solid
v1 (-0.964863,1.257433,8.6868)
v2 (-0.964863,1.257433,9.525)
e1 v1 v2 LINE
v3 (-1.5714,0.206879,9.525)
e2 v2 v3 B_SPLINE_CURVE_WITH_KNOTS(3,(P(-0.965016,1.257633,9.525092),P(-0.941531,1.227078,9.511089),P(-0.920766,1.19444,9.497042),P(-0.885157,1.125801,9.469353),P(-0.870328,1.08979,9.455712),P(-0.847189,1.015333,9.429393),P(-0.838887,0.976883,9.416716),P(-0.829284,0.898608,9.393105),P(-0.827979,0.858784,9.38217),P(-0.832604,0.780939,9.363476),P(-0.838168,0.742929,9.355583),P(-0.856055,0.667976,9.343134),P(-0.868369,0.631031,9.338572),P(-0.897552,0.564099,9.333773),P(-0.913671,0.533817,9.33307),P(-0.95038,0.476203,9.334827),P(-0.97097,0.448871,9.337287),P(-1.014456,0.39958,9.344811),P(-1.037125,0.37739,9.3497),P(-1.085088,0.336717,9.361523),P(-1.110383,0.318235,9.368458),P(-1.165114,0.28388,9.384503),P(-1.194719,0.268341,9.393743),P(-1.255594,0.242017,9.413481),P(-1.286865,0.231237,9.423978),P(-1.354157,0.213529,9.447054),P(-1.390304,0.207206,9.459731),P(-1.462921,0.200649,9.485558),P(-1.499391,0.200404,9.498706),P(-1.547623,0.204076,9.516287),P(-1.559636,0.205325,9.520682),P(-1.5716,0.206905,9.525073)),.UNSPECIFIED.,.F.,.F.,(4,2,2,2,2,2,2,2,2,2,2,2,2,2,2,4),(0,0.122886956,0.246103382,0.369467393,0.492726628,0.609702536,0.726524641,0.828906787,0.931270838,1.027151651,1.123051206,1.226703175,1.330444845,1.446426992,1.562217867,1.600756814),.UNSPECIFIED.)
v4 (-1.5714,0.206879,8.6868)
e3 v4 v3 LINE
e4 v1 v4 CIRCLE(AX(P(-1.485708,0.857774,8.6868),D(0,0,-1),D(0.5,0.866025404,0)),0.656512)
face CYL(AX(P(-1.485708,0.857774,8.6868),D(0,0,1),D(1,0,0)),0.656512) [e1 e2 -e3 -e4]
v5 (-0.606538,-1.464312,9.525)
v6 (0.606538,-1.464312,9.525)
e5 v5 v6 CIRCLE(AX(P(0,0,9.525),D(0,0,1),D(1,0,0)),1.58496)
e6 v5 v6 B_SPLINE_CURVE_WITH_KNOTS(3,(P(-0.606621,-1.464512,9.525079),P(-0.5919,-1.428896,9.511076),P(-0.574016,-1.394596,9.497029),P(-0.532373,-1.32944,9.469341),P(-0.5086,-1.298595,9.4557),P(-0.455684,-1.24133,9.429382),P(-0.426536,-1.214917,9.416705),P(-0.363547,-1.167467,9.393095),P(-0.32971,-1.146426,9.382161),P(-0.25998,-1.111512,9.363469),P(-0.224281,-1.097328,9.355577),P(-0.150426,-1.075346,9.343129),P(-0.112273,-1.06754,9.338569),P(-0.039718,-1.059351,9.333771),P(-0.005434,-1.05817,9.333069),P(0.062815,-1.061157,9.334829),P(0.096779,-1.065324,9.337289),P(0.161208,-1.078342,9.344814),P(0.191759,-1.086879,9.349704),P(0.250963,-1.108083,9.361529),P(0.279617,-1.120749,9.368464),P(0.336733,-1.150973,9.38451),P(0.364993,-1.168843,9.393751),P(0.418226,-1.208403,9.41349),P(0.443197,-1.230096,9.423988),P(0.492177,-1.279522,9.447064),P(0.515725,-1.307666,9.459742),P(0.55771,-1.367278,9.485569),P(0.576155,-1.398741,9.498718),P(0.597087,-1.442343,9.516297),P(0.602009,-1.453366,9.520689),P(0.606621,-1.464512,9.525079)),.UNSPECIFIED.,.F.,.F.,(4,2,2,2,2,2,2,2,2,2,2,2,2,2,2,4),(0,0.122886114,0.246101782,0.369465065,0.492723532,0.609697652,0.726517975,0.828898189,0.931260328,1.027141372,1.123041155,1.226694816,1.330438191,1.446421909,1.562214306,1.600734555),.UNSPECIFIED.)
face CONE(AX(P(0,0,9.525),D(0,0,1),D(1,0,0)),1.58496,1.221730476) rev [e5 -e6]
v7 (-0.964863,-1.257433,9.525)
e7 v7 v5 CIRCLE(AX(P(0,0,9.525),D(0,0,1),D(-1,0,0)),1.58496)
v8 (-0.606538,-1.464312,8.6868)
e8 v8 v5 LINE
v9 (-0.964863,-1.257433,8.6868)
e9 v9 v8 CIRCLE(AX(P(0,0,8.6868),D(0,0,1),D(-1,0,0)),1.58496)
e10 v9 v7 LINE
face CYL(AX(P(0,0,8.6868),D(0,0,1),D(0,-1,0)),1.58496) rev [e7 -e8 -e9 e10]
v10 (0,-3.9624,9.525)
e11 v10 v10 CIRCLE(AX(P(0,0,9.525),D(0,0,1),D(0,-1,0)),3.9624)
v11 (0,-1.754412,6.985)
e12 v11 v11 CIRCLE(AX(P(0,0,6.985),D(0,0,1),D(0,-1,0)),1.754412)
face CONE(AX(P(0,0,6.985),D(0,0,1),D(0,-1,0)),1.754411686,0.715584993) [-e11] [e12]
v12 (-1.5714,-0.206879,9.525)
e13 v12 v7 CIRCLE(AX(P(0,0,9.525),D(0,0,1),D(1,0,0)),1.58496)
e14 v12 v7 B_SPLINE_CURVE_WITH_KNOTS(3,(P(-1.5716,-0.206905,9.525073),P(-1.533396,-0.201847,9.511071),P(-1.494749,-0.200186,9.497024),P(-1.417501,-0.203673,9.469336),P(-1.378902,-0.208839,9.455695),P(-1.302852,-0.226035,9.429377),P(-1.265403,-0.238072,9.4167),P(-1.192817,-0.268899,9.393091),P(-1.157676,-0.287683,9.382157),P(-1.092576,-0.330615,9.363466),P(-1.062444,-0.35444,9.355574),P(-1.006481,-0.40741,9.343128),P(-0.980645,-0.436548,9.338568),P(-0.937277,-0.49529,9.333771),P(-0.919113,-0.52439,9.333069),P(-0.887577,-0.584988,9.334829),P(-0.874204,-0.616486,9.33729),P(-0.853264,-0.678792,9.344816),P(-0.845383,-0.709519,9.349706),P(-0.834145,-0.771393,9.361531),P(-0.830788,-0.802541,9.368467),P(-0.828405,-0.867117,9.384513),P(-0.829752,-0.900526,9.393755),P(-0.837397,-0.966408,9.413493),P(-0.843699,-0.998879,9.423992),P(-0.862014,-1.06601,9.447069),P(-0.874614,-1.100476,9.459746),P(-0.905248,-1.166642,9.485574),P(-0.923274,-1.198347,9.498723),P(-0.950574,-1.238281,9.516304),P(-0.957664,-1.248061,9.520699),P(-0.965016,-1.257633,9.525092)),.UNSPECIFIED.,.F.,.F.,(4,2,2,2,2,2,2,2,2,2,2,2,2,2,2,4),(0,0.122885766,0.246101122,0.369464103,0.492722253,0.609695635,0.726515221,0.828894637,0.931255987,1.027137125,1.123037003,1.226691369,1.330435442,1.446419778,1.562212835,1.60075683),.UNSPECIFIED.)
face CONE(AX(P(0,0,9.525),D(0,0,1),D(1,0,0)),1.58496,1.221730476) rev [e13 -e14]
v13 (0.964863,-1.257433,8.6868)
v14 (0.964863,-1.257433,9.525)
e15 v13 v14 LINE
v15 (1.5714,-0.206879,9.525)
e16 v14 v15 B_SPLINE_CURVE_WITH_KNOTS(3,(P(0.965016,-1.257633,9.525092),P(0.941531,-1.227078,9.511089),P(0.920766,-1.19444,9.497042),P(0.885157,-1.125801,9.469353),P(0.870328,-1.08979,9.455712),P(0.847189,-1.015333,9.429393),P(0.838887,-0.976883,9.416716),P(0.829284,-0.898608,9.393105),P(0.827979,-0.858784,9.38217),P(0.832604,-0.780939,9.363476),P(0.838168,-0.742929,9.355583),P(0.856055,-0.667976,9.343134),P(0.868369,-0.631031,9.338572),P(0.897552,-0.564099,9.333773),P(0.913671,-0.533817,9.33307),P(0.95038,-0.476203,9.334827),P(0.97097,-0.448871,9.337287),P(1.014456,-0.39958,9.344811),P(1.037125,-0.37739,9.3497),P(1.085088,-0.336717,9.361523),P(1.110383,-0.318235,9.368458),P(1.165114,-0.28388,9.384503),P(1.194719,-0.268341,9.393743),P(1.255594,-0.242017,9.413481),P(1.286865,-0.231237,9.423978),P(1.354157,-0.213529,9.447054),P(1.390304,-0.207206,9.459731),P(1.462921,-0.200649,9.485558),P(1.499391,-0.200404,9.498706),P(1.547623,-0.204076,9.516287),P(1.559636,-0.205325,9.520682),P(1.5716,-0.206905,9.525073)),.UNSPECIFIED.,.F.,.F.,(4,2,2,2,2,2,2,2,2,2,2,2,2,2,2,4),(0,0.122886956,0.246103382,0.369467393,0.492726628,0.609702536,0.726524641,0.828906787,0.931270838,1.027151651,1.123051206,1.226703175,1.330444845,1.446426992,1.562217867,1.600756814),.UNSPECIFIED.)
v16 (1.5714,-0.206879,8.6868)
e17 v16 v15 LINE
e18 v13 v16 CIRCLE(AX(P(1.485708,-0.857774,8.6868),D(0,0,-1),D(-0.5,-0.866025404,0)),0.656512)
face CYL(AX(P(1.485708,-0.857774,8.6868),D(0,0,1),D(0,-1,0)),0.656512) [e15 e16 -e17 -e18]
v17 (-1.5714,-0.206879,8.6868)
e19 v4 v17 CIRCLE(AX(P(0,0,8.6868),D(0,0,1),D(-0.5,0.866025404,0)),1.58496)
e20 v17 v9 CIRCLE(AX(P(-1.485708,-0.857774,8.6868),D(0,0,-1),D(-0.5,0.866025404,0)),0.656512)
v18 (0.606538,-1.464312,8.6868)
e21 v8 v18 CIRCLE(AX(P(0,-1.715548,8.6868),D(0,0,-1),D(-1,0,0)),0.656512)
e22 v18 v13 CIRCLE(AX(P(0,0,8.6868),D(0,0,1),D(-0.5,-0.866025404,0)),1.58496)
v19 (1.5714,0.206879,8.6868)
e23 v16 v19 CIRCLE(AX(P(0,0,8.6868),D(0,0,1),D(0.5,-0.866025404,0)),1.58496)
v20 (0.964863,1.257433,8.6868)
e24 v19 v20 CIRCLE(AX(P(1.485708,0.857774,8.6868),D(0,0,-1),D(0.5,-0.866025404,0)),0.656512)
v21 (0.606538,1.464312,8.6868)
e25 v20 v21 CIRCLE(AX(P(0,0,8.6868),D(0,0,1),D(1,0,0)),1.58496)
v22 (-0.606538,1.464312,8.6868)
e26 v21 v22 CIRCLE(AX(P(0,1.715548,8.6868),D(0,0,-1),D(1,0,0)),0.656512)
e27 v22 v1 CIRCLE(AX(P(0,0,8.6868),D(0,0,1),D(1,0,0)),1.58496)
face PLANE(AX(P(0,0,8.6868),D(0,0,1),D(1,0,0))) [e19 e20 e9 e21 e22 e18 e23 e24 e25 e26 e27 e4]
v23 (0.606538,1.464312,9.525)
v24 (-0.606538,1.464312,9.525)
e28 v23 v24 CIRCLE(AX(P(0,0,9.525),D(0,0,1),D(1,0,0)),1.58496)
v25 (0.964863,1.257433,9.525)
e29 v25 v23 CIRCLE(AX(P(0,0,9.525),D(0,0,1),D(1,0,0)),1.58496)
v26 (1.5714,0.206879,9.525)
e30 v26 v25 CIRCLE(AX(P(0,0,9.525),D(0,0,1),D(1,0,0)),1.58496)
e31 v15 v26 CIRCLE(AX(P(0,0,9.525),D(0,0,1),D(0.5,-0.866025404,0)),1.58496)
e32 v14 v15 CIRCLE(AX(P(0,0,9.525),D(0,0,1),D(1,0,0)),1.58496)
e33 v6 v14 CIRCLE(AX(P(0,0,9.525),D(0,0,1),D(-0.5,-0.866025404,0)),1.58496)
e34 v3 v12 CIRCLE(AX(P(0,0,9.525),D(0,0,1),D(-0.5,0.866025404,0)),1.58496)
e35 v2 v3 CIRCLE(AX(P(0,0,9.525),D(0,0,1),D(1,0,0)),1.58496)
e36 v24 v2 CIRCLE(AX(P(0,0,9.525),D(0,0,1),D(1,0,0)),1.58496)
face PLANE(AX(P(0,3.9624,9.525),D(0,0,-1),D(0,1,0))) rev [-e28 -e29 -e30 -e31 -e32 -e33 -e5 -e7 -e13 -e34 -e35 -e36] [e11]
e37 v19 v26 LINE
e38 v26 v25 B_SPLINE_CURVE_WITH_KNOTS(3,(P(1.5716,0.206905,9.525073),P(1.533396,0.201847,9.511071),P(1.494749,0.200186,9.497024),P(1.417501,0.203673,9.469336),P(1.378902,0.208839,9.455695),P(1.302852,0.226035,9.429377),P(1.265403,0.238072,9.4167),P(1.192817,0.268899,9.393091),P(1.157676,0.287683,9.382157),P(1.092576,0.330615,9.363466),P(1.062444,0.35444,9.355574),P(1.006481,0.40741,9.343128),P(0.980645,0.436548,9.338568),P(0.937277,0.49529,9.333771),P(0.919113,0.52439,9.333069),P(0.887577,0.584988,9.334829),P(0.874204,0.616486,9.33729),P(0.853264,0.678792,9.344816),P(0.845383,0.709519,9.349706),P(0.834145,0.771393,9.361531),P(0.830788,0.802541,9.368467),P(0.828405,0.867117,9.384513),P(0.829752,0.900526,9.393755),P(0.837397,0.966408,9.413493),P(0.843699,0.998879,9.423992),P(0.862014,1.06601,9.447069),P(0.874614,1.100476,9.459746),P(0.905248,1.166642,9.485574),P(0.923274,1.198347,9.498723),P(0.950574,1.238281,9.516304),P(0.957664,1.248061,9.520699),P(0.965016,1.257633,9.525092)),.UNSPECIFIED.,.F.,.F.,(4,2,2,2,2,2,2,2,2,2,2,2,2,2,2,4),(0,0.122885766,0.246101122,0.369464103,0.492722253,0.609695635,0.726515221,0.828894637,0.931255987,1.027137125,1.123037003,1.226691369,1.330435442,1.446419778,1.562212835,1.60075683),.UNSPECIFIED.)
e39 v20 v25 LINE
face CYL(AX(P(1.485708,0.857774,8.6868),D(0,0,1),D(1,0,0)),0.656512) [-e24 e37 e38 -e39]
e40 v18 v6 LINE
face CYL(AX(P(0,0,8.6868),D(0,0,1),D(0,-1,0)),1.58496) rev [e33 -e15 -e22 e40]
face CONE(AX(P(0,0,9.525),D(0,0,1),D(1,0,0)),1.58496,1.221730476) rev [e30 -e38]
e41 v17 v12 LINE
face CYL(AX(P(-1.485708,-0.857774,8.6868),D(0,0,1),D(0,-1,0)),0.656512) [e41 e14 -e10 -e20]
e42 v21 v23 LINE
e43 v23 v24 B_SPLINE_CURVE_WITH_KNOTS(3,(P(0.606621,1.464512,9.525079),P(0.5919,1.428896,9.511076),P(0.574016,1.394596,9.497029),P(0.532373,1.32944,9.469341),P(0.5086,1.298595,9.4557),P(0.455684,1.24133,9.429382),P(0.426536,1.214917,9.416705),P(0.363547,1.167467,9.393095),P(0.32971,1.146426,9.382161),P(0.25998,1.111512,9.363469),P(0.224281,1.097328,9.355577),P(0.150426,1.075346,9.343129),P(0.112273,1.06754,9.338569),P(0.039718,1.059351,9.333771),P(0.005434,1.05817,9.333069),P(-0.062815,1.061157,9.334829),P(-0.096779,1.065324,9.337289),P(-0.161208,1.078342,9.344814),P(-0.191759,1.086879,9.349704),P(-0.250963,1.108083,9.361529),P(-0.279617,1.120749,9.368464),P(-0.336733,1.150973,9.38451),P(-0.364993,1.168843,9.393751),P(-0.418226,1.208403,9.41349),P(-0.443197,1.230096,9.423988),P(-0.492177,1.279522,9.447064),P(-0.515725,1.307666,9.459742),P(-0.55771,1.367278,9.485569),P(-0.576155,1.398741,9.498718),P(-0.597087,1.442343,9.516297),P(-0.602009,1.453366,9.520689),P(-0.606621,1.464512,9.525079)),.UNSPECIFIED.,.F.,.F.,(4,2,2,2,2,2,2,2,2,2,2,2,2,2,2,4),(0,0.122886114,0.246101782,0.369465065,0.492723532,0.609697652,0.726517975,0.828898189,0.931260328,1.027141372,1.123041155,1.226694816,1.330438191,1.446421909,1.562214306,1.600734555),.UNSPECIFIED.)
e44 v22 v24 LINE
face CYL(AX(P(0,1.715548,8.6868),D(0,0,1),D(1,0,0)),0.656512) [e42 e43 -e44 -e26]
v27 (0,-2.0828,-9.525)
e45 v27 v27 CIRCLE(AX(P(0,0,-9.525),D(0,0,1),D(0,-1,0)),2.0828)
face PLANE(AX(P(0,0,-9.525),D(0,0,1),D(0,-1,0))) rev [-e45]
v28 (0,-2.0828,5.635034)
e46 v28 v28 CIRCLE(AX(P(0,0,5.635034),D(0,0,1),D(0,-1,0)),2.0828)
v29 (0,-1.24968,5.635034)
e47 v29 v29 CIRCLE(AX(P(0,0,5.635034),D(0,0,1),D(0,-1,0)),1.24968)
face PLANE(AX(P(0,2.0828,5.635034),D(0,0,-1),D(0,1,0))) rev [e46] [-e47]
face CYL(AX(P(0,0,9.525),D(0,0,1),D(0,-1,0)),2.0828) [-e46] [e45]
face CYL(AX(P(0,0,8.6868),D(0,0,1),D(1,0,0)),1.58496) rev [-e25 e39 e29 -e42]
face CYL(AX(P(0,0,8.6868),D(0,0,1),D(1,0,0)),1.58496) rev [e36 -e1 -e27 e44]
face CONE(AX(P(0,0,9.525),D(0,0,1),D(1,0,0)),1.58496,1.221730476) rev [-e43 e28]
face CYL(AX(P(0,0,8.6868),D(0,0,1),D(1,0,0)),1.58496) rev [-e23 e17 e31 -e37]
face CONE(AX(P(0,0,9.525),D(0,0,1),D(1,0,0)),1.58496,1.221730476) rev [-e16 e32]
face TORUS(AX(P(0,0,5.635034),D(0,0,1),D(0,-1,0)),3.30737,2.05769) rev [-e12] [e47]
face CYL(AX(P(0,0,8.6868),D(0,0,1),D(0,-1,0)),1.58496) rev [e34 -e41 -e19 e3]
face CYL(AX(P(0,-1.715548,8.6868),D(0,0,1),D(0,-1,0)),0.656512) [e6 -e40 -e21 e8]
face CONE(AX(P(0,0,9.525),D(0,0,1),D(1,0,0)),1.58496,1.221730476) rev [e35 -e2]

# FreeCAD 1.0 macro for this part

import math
import FreeCAD as App
import Part
import Sketcher

V = App.Vector
Q = App.Units.Quantity

doc = App.newDocument("Part")
body = doc.addObject("PartDesign::Body", "Body")

sketch1 = body.newObject("Sketcher::SketchObject", "Sketch")
sketch1.AttachmentSupport = (doc.getObject("YZ_Plane"), [""])
sketch1.MapMode = "FlatFace"
sketch1.addGeometry(Part.LineSegment(V(2.1, 5.6, 0), V(1.2, 5.6, 0)), False)
sketch1.addGeometry(Part.ArcOfCircle(Part.Circle(V(3.3, 5.6, 0), V(0, 0, 1), 2.1), math.radians(139), math.radians(180)), False)
sketch1.addGeometry(Part.LineSegment(V(1.8, 7, 0), V(4, 9.5, 0)), False)
sketch1.addGeometry(Part.LineSegment(V(4, 9.5, 0), V(0, 9.5, 0)), False)
sketch1.addGeometry(Part.LineSegment(V(0, 9.5, 0), V(0, -9.5, 0)), False)
sketch1.addGeometry(Part.LineSegment(V(0, -9.5, 0), V(2.1, -9.5, 0)), False)
sketch1.addGeometry(Part.LineSegment(V(2.1, -9.5, 0), V(2.1, 5.6, 0)), False)
sketch1.addConstraint(Sketcher.Constraint("Coincident", 0, 2, 1, 2))
sketch1.addConstraint(Sketcher.Constraint("Tangent", 1, 1, 2, 1))
sketch1.addConstraint(Sketcher.Constraint("Coincident", 2, 2, 3, 1))
sketch1.addConstraint(Sketcher.Constraint("Coincident", 3, 2, 4, 1))
sketch1.addConstraint(Sketcher.Constraint("Coincident", 4, 2, 5, 1))
sketch1.addConstraint(Sketcher.Constraint("Coincident", 5, 2, 6, 1))
sketch1.addConstraint(Sketcher.Constraint("Coincident", 6, 2, 0, 1))
sketch1.addConstraint(Sketcher.Constraint("Horizontal", 0))
sketch1.addConstraint(Sketcher.Constraint("Horizontal", 3))
sketch1.addConstraint(Sketcher.Constraint("Vertical", 4))
sketch1.addConstraint(Sketcher.Constraint("Horizontal", 5))
sketch1.addConstraint(Sketcher.Constraint("Vertical", 6))
sketch1.addConstraint(Sketcher.Constraint("Symmetric", 3, 2, 4, 2, -1, 1))
sketch1.addConstraint(Sketcher.Constraint("Horizontal", 1, 3, 0, 2))
sketch1.addConstraint(Sketcher.Constraint("Angle", 2, Q("49 deg")))
sketch1.addConstraint(Sketcher.Constraint("DistanceY", 4, 2, 4, 1, Q("0.75 in")))
sketch1.addConstraint(Sketcher.Constraint("DistanceY", 1, 1, 2, 2, Q("0.1 in")))
sketch1.addConstraint(Sketcher.Constraint("DistanceX", 3, 2, 3, 1, Q("0.156 in")))
sketch1.addConstraint(Sketcher.Constraint("DistanceX", 5, 1, 5, 2, Q("0.082 in")))
sketch1.addConstraint(Sketcher.Constraint("DistanceX", 0, 2, 0, 1, Q("0.0328 in")))
revolution = body.newObject("PartDesign::Revolution", "Revolution")
revolution.Profile = sketch1
revolution.ReferenceAxis = (sketch1, ["V_Axis"])
revolution.Angle = 360

sketch2 = body.newObject("Sketcher::SketchObject", "Sketch001")
sketch2.AttachmentSupport = (doc.getObject("XY_Plane"), [""])
sketch2.MapMode = "FlatFace"
sketch2.AttachmentOffset = App.Placement(V(0, 0, 0.375 * 25.4), App.Rotation())
sketch2.addGeometry(Part.LineSegment(V(-0.79, 1.37, 0), V(0, 0, 0)), False)
sketch2.addGeometry(Part.LineSegment(V(0, 0, 0), V(0.79, 1.37, 0)), False)
sketch2.addGeometry(Part.ArcOfCircle(Part.Circle(V(0, 0, 0), V(0, 0, 1), 1.58), math.radians(60), math.radians(67.5)), False)
sketch2.addGeometry(Part.ArcOfCircle(Part.Circle(V(0, 1.72, 0), V(0, 0, 1), 0.66), math.radians(-157), math.radians(-23)), False)
sketch2.addGeometry(Part.ArcOfCircle(Part.Circle(V(0, 0, 0), V(0, 0, 1), 1.58), math.radians(112.5), math.radians(120)), False)
sketch2.addConstraint(Sketcher.Constraint("Coincident", 0, 2, 1, 1))
sketch2.addConstraint(Sketcher.Constraint("Coincident", 1, 2, 2, 1))
sketch2.addConstraint(Sketcher.Constraint("Coincident", 2, 2, 3, 2))
sketch2.addConstraint(Sketcher.Constraint("Coincident", 3, 1, 4, 1))
sketch2.addConstraint(Sketcher.Constraint("Coincident", 4, 2, 0, 1))
sketch2.addConstraint(Sketcher.Constraint("Coincident", 2, 3, -1, 1))
sketch2.addConstraint(Sketcher.Constraint("Coincident", 4, 3, -1, 1))
sketch2.addConstraint(Sketcher.Constraint("Coincident", 0, 2, -1, 1))
sketch2.addConstraint(Sketcher.Constraint("Equal", 2, 4))
sketch2.addConstraint(Sketcher.Constraint("PointOnObject", 3, 3, -2))
sketch2.addConstraint(Sketcher.Constraint("Horizontal", 1, 2, 4, 2))
sketch2.addConstraint(Sketcher.Constraint("Angle", 0, Q("-60 deg")))
sketch2.addConstraint(Sketcher.Constraint("Radius", 2, Q("0.0624 in")))
sketch2.addConstraint(Sketcher.Constraint("Radius", 3, 0.656512))
sketch2.addConstraint(Sketcher.Constraint("DistanceY", -1, 1, 3, 3, 1.715548))
pocket1 = body.newObject("PartDesign::Pocket", "Pocket")
pocket1.Profile = sketch2
pocket1.Length = Q("0.033 in")
doc.recompute()

polarpattern = body.newObject("PartDesign::PolarPattern", "PolarPattern")
polarpattern.Originals = [pocket1]
polarpattern.Axis = (doc.getObject("Z_Axis"), [""])
polarpattern.Angle = 360
polarpattern.Occurrences = 6
body.Tip = polarpattern

sketch3 = body.newObject("Sketcher::SketchObject", "Sketch002")
sketch3.AttachmentSupport = (doc.getObject("YZ_Plane"), [""])
sketch3.MapMode = "FlatFace"
sketch3.addGeometry(Part.LineSegment(V(0, 9.5, 0), V(-1.6, 9.5, 0)), False)
sketch3.addGeometry(Part.LineSegment(V(-1.6, 9.5, 0), V(0, 8.9, 0)), False)
sketch3.addGeometry(Part.LineSegment(V(0, 8.9, 0), V(0, 9.5, 0)), False)
sketch3.addConstraint(Sketcher.Constraint("Coincident", 0, 2, 1, 1))
sketch3.addConstraint(Sketcher.Constraint("Coincident", 1, 2, 2, 1))
sketch3.addConstraint(Sketcher.Constraint("Coincident", 2, 2, 0, 1))
sketch3.addConstraint(Sketcher.Constraint("Horizontal", 0))
sketch3.addConstraint(Sketcher.Constraint("Vertical", 2))
sketch3.addConstraint(Sketcher.Constraint("PointOnObject", 1, 2, -2))
sketch3.addConstraint(Sketcher.Constraint("Angle", 1, Q("-20 deg")))
sketch3.addConstraint(Sketcher.Constraint("DistanceX", 0, 2, 0, 1, Q("0.0624 in")))
sketch3.addConstraint(Sketcher.Constraint("DistanceY", -1, 1, 0, 2, Q("0.375 in")))
groove = body.newObject("PartDesign::Groove", "Groove")
groove.Profile = sketch3
groove.ReferenceAxis = (sketch3, ["V_Axis"])
groove.Angle = 360

doc.recompute()
